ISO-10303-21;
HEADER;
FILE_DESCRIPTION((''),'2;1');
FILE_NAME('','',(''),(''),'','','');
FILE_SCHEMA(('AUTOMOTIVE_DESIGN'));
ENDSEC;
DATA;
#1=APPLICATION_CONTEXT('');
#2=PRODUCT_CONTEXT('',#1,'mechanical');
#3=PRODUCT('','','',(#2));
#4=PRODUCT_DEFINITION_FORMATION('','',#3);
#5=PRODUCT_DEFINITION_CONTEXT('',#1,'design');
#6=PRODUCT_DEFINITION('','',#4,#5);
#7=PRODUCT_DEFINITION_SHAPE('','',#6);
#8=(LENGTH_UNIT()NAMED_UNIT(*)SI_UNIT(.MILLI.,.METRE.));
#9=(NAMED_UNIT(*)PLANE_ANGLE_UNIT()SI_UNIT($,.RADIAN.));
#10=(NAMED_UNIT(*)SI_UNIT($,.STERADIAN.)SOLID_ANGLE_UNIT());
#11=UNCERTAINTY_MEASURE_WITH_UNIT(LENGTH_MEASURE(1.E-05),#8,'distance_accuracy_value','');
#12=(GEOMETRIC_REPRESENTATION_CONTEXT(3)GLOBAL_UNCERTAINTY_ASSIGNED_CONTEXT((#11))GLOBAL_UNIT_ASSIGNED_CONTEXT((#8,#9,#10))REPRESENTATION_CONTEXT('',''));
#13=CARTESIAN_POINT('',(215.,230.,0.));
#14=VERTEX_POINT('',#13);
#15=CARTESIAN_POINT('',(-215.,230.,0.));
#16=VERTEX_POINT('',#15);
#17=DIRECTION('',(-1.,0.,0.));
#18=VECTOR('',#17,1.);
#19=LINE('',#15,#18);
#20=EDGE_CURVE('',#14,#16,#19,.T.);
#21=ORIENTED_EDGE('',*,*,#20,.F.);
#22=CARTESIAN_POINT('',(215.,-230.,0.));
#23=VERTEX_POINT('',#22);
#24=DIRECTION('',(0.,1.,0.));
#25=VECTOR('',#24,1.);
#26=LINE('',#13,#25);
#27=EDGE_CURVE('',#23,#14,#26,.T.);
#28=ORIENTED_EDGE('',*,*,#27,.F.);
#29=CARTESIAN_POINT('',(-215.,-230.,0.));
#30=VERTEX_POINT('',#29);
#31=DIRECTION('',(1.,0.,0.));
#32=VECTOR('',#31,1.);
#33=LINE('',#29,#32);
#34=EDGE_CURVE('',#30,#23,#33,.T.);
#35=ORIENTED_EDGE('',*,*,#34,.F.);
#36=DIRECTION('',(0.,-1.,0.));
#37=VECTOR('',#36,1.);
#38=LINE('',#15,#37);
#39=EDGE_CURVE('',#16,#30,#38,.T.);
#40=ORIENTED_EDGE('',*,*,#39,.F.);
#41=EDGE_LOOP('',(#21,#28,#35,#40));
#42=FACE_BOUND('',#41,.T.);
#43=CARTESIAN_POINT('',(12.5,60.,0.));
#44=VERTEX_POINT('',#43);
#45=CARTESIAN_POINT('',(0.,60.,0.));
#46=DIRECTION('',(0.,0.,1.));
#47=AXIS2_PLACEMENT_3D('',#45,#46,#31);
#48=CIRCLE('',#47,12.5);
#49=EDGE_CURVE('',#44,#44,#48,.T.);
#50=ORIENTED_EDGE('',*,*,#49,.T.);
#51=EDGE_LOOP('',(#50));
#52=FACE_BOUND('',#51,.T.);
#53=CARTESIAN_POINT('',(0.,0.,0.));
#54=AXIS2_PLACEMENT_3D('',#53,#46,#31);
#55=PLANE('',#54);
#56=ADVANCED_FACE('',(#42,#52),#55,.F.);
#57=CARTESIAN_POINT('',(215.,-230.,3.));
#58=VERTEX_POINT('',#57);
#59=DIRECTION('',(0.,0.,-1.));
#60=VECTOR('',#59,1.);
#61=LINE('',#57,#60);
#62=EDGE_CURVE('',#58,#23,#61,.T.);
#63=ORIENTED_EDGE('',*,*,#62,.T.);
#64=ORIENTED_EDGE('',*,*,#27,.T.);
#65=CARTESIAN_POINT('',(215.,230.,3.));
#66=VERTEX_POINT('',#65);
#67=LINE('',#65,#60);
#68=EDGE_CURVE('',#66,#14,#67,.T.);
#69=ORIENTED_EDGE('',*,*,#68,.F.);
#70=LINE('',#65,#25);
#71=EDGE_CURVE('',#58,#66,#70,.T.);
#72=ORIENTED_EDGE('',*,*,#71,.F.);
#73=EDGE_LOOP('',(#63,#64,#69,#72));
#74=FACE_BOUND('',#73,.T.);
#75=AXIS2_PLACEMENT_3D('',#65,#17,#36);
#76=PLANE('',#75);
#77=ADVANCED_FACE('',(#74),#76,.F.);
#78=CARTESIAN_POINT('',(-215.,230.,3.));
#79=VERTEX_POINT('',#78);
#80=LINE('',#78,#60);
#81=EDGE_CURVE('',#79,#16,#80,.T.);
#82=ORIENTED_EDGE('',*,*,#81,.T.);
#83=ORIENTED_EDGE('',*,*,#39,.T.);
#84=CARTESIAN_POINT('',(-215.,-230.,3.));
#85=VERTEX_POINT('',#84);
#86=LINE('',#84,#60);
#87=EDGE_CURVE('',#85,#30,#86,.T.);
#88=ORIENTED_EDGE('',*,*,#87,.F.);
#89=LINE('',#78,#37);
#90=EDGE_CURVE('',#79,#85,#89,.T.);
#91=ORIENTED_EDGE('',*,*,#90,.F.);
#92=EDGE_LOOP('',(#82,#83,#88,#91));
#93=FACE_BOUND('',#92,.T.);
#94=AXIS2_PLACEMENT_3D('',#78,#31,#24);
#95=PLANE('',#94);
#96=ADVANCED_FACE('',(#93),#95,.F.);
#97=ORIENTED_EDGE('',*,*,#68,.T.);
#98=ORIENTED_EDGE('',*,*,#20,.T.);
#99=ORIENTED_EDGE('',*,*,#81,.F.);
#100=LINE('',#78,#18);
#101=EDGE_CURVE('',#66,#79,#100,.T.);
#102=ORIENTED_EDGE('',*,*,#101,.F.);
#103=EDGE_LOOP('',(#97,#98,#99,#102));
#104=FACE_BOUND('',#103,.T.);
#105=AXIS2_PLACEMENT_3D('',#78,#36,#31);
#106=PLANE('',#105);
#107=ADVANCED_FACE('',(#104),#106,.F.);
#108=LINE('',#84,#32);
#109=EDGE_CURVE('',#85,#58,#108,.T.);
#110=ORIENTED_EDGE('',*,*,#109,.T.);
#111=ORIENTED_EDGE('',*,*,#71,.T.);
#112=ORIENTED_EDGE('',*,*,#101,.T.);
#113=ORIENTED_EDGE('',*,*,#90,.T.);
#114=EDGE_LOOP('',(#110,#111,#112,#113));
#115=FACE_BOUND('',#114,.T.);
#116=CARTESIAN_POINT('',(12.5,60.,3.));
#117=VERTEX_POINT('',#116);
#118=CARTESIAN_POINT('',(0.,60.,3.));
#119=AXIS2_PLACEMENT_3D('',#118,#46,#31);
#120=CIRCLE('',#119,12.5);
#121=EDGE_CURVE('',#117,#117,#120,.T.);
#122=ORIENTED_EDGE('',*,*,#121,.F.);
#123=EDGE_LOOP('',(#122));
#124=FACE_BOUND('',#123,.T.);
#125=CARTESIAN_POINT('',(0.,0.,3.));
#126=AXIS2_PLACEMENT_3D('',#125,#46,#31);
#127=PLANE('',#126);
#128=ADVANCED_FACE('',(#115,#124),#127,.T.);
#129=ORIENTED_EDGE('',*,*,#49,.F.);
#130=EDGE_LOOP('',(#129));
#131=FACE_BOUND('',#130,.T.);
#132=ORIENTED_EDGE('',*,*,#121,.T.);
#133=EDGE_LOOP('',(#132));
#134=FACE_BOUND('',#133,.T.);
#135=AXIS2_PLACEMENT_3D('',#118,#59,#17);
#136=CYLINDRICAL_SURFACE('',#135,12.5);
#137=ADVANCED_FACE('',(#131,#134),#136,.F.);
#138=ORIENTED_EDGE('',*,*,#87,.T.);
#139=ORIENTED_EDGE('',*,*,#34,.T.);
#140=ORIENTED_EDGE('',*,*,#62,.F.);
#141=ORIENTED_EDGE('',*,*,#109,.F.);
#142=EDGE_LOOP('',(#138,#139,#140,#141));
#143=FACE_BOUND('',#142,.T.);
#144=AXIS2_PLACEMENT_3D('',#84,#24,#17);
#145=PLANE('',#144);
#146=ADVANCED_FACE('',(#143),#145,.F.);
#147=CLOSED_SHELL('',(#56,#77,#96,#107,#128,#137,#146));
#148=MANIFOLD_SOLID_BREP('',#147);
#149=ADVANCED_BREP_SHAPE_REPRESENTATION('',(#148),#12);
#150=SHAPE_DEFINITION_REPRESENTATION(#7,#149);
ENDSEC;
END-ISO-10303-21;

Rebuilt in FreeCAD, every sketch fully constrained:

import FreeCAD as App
import Part
import Sketcher
from FreeCAD import Vector
Q = App.Units.Quantity

doc = App.newDocument("Part")
body = doc.addObject("PartDesign::Body", "Body")

# Sketch on XY plane
sketch1 = body.newObject("Sketcher::SketchObject", "Sketch")
sketch1.AttachmentSupport = (doc.getObject("XY_Plane"), [""])
sketch1.MapMode = "FlatFace"
sketch1.addGeometry([
    Part.LineSegment(Vector(-215, 230, 0), Vector(-215, -230, 0)),  # 0
    Part.LineSegment(Vector(-215, -230, 0), Vector(215, -230, 0)),  # 1
    Part.LineSegment(Vector(215, -230, 0), Vector(215, 230, 0)),  # 2
    Part.LineSegment(Vector(215, 230, 0), Vector(-215, 230, 0)),  # 3
    Part.Circle(Vector(0, 60, 0), Vector(0, 0, 1), 12),  # 4
], False)
sketch1.addConstraint([
    Sketcher.Constraint("Coincident", 0, 2, 1, 1),
    Sketcher.Constraint("Coincident", 1, 2, 2, 1),
    Sketcher.Constraint("Coincident", 2, 2, 3, 1),
    Sketcher.Constraint("Coincident", 3, 2, 0, 1),
    Sketcher.Constraint("Vertical", 0),
    Sketcher.Constraint("Horizontal", 1),
    Sketcher.Constraint("Vertical", 2),
    Sketcher.Constraint("Horizontal", 3),
    Sketcher.Constraint("Symmetric", 0, 2, 2, 2, -1, 1),
    Sketcher.Constraint("PointOnObject", 4, 3, -2),
    Sketcher.Constraint("Diameter", 4, Q("25 mm")),
    Sketcher.Constraint("DistanceX", 1, 1, 1, 2, Q("430 mm")),
    Sketcher.Constraint("DistanceY", 0, 2, 0, 1, Q("460 mm")),
    Sketcher.Constraint("DistanceY", -1, 1, 4, 3, Q("60 mm")),
])
pad1 = body.newObject("PartDesign::Pad", "Pad")
pad1.Profile = sketch1
pad1.Length = 3

doc.recompute()
